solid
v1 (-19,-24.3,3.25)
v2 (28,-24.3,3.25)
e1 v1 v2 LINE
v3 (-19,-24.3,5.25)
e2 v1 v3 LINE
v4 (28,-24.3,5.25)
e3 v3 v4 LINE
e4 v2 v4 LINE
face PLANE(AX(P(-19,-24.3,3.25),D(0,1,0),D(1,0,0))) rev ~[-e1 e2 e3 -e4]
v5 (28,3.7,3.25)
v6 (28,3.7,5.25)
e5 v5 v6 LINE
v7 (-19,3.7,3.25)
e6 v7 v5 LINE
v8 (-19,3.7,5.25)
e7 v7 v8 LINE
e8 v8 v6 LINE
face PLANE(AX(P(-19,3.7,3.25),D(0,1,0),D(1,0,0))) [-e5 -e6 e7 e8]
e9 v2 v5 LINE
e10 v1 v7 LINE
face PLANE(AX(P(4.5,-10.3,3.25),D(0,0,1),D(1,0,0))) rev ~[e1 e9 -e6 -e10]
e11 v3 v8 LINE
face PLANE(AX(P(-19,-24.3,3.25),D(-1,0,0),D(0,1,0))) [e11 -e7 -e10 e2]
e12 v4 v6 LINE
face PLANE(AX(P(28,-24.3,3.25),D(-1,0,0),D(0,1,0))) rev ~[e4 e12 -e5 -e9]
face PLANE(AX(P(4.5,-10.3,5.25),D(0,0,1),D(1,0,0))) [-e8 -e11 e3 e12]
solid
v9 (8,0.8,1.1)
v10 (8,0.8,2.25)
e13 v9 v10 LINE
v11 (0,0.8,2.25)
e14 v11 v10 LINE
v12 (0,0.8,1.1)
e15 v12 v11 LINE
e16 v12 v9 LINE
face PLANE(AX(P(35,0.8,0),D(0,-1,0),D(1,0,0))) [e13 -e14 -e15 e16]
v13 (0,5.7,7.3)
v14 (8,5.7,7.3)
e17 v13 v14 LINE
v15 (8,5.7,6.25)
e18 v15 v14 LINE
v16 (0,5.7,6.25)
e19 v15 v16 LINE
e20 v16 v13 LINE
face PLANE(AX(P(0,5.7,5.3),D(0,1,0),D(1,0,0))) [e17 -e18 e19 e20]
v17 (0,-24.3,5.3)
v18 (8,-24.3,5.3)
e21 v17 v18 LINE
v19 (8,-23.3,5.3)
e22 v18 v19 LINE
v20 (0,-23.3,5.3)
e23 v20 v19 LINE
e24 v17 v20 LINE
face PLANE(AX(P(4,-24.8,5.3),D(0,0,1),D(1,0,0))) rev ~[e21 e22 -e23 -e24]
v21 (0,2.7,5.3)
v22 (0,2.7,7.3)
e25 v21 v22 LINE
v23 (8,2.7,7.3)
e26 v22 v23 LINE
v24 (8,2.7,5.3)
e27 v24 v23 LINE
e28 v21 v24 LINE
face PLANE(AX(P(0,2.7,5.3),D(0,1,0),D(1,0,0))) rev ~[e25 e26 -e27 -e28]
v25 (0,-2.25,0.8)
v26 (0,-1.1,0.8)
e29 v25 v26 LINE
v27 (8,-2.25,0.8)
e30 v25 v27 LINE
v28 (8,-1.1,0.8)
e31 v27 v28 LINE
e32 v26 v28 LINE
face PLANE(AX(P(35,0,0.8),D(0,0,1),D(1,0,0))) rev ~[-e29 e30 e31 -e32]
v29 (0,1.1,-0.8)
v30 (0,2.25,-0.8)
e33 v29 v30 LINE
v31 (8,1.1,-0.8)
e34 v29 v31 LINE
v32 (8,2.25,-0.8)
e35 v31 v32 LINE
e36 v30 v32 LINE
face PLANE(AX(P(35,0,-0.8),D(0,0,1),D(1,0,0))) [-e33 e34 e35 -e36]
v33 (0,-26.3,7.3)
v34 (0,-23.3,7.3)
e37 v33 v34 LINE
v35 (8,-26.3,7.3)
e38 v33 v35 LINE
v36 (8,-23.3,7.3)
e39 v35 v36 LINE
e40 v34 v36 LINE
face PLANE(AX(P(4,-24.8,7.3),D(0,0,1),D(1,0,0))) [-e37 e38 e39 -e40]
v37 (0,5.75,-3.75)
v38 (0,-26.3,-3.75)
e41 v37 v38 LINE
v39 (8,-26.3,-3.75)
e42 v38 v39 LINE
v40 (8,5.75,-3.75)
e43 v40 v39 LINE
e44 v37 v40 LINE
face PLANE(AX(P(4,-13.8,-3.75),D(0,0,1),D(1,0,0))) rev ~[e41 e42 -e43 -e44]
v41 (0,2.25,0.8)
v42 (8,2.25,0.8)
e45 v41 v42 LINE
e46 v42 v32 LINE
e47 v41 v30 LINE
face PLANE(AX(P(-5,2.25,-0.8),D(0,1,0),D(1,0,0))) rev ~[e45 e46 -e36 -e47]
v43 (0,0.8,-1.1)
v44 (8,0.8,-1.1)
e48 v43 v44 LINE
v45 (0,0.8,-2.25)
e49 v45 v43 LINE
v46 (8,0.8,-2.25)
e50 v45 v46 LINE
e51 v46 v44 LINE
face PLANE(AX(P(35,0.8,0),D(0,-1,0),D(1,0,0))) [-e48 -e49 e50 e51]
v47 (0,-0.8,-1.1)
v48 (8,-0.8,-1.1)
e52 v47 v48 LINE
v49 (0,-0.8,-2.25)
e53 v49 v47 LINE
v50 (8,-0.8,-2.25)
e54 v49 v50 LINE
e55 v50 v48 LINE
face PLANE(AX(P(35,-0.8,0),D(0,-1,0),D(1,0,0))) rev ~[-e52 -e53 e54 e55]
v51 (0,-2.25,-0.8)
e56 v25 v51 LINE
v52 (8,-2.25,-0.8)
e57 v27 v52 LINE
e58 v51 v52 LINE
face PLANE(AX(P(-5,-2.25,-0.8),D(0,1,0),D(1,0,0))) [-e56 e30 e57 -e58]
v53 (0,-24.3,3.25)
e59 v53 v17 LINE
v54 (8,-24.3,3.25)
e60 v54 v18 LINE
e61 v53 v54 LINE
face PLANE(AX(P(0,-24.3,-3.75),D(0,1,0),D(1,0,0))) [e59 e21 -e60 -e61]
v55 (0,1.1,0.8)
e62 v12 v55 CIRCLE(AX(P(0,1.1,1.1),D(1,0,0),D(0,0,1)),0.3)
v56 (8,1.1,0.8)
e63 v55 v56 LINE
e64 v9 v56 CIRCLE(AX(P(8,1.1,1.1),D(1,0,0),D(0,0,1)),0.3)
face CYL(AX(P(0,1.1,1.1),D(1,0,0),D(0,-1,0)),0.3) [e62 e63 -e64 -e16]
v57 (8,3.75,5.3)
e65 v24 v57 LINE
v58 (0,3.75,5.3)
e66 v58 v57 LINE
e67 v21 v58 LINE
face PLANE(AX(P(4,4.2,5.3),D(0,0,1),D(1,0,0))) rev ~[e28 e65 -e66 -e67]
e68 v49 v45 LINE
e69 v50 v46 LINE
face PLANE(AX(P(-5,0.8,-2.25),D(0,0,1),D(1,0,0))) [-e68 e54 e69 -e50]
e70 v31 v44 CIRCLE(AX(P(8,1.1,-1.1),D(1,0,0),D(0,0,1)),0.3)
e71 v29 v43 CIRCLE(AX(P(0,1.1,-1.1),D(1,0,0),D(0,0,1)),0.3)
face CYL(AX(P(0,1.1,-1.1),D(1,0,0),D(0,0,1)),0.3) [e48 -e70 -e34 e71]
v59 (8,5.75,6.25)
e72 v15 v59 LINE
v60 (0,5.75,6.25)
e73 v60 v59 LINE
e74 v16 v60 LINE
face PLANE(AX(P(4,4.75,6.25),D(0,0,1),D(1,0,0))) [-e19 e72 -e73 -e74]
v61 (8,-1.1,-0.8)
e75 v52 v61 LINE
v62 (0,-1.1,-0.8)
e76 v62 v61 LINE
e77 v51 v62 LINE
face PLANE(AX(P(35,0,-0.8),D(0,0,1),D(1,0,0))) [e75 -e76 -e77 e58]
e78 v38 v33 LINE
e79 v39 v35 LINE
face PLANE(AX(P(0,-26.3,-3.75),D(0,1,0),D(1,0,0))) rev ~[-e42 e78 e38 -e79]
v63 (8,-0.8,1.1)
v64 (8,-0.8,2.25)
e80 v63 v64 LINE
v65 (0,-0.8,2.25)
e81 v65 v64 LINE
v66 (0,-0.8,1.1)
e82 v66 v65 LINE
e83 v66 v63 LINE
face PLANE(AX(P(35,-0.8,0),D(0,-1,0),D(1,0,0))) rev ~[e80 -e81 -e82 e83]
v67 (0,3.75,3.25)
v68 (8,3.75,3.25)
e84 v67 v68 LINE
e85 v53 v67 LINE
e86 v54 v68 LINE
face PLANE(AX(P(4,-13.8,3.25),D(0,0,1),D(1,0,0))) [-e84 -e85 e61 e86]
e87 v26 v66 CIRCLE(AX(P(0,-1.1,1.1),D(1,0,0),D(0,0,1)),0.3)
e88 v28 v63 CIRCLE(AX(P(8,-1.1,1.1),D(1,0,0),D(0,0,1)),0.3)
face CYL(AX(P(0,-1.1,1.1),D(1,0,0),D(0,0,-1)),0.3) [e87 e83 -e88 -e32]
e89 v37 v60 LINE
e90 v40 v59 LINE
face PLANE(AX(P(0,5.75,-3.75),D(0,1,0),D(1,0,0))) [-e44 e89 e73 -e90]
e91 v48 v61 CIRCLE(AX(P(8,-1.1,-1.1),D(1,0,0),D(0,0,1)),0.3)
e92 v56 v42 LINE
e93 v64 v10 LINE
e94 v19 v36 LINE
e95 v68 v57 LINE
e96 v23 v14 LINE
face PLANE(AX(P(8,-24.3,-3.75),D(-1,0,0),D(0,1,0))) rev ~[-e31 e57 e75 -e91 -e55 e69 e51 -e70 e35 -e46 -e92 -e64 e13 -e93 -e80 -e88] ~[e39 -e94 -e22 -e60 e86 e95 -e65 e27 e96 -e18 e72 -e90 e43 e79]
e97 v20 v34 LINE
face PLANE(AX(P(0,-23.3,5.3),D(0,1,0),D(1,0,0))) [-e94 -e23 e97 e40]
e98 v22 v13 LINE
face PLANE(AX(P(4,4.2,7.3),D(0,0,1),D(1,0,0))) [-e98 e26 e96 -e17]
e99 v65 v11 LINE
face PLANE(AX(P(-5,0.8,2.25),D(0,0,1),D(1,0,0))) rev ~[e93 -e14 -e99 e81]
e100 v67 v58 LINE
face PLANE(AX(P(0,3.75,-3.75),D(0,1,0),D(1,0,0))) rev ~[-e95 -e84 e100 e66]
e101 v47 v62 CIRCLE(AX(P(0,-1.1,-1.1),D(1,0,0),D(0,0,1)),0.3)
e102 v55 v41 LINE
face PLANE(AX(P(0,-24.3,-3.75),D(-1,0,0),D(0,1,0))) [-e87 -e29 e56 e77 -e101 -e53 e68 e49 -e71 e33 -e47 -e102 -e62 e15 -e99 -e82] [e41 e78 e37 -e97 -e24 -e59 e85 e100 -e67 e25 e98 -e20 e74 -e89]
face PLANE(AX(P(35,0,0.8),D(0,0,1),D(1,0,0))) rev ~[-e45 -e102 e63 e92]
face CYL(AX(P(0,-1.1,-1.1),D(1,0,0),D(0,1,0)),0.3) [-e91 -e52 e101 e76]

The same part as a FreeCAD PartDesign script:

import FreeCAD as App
import Part
import Sketcher

V = App.Vector
Q = App.Units.Quantity


def edges_at(feature, points):
    """Names of the edges that pass closest to the given points."""
    edges = feature.Shape.Edges
    near = lambda p: min(range(len(edges)), key=lambda i: edges[i].distToShape(Part.Vertex(*p))[0])
    return sorted({f"Edge{near(p) + 1}" for p in points})

doc = App.newDocument("Part")
body = doc.addObject("PartDesign::Body", "Body")

# Sketch on XY plane
sketch1 = doc.addObject("Sketcher::SketchObject", "Sketch")
body.addObject(sketch1)
sketch1.AttachmentSupport = (doc.XY_Plane, [""])
sketch1.MapMode = "FlatFace"
sketch1.AttachmentOffset = App.Placement(V(0, 0, 3.25), App.Rotation())
sketch1.addGeometry([
    Part.LineSegment(V(-19, 4, 0), V(-19, -24, 0)),
    Part.LineSegment(V(-19, -24, 0), V(28, -24, 0)),
    Part.LineSegment(V(28, -24, 0), V(28, 4, 0)),
    Part.LineSegment(V(28, 4, 0), V(-19, 4, 0)),
], False)
sketch1.addConstraint([
    Sketcher.Constraint("Coincident", 0, 2, 1, 1),
    Sketcher.Constraint("Coincident", 1, 2, 2, 1),
    Sketcher.Constraint("Coincident", 2, 2, 3, 1),
    Sketcher.Constraint("Coincident", 3, 2, 0, 1),
    Sketcher.Constraint("Vertical", 0),
    Sketcher.Constraint("Horizontal", 1),
    Sketcher.Constraint("Vertical", 2),
    Sketcher.Constraint("Horizontal", 3),
    Sketcher.Constraint("DistanceX", 1, 1, 1, 2, Q("47 mm")),
    Sketcher.Constraint("DistanceY", 0, 2, 0, 1, Q("28 mm")),
    Sketcher.Constraint("DistanceX", 0, 2, -1, 1, Q("19 mm")),
    Sketcher.Constraint("DistanceY", 0, 2, -1, 1, Q("24.3 mm")),
])
pad1 = doc.addObject("PartDesign::Pad", "Pad")
body.addObject(pad1)
pad1.Profile = sketch1
pad1.Length = 2
body2 = doc.addObject("PartDesign::Body", "Body001")

# Sketch on XY plane
sketch2 = doc.addObject("Sketcher::SketchObject", "Sketch001")
body2.addObject(sketch2)
sketch2.AttachmentSupport = (doc.getObject("XY_Plane001"), [""])
sketch2.MapMode = "FlatFace"
sketch2.AttachmentOffset = App.Placement(V(0, 0, 5.3), App.Rotation())
sketch2.addGeometry([
    Part.LineSegment(V(0, 5.7, 0), V(0, 2.7, 0)),
    Part.LineSegment(V(0, 2.7, 0), V(8, 2.7, 0)),
    Part.LineSegment(V(8, 2.7, 0), V(8, 5.7, 0)),
    Part.LineSegment(V(8, 5.7, 0), V(0, 5.7, 0)),
], False)
sketch2.addConstraint([
    Sketcher.Constraint("Coincident", 0, 2, 1, 1),
    Sketcher.Constraint("Coincident", 1, 2, 2, 1),
    Sketcher.Constraint("Coincident", 2, 2, 3, 1),
    Sketcher.Constraint("Coincident", 3, 2, 0, 1),
    Sketcher.Constraint("Vertical", 0),
    Sketcher.Constraint("Horizontal", 1),
    Sketcher.Constraint("Vertical", 2),
    Sketcher.Constraint("Horizontal", 3),
    Sketcher.Constraint("PointOnObject", 0, 2, -2),
    Sketcher.Constraint("DistanceX", 1, 1, 1, 2, Q("8 mm")),
    Sketcher.Constraint("DistanceY", 0, 2, 0, 1, Q("3 mm")),
    Sketcher.Constraint("DistanceY", -1, 1, 0, 2, Q("2.7 mm")),
])
pad2 = doc.addObject("PartDesign::Pad", "Pad001")
body2.addObject(pad2)
pad2.Profile = sketch2
pad2.Length = 2
body3 = doc.addObject("PartDesign::Body", "Body002")

# Sketch on XZ plane
sketch3 = doc.addObject("Sketcher::SketchObject", "Sketch002")
body3.addObject(sketch3)
sketch3.AttachmentSupport = (doc.getObject("XZ_Plane002"), [""])
sketch3.MapMode = "FlatFace"
sketch3.AttachmentOffset = App.Placement(V(0, 0, -0.8), App.Rotation())
sketch3.addGeometry([
    Part.LineSegment(V(0, 2.2, 0), V(0, -2.2, 0)),
    Part.LineSegment(V(0, -2.2, 0), V(80, -2.2, 0)),
    Part.LineSegment(V(80, -2.2, 0), V(80, 2.2, 0)),
    Part.LineSegment(V(80, 2.2, 0), V(0, 2.2, 0)),
], False)
sketch3.addConstraint([
    Sketcher.Constraint("Coincident", 0, 2, 1, 1),
    Sketcher.Constraint("Coincident", 1, 2, 2, 1),
    Sketcher.Constraint("Coincident", 2, 2, 3, 1),
    Sketcher.Constraint("Coincident", 3, 2, 0, 1),
    Sketcher.Constraint("Vertical", 0),
    Sketcher.Constraint("Horizontal", 1),
    Sketcher.Constraint("Vertical", 2),
    Sketcher.Constraint("Horizontal", 3),
    Sketcher.Constraint("Symmetric", 0, 2, 3, 2, -1, 1),
    Sketcher.Constraint("DistanceX", 1, 1, 1, 2, Q("80 mm")),
    Sketcher.Constraint("DistanceY", 0, 2, 0, 1, Q("4.5 mm")),
])
pad3 = doc.addObject("PartDesign::Pad", "Pad002")
body3.addObject(pad3)
pad3.Profile = sketch3
pad3.Length = 1.6
body4 = doc.addObject("PartDesign::Body", "Body003")

# Sketch on XY plane
sketch4 = doc.addObject("Sketcher::SketchObject", "Sketch003")
body4.addObject(sketch4)
sketch4.AttachmentSupport = (doc.getObject("XY_Plane003"), [""])
sketch4.MapMode = "FlatFace"
sketch4.AttachmentOffset = App.Placement(V(0, 0, -0.8), App.Rotation())
sketch4.addGeometry([
    Part.LineSegment(V(0, 2.2, 0), V(0, -2.2, 0)),
    Part.LineSegment(V(0, -2.2, 0), V(80, -2.2, 0)),
    Part.LineSegment(V(80, -2.2, 0), V(80, 2.2, 0)),
    Part.LineSegment(V(80, 2.2, 0), V(0, 2.2, 0)),
], False)
sketch4.addConstraint([
    Sketcher.Constraint("Coincident", 0, 2, 1, 1),
    Sketcher.Constraint("Coincident", 1, 2, 2, 1),
    Sketcher.Constraint("Coincident", 2, 2, 3, 1),
    Sketcher.Constraint("Coincident", 3, 2, 0, 1),
    Sketcher.Constraint("Vertical", 0),
    Sketcher.Constraint("Horizontal", 1),
    Sketcher.Constraint("Vertical", 2),
    Sketcher.Constraint("Horizontal", 3),
    Sketcher.Constraint("Symmetric", 0, 2, 3, 2, -1, 1),
    Sketcher.Constraint("DistanceX", 1, 1, 1, 2, Q("80 mm")),
    Sketcher.Constraint("DistanceY", 0, 2, 0, 1, Q("4.5 mm")),
])
pad4 = doc.addObject("PartDesign::Pad", "Pad003")
body4.addObject(pad4)
pad4.Profile = sketch4
pad4.Length = 1.6
doc.recompute()

boolean = doc.addObject("PartDesign::Boolean", "Boolean")
body4.addObject(boolean)
boolean.Type = "Fuse"
boolean.addObjects([body3])
body5 = doc.addObject("PartDesign::Body", "Body004")
doc.recompute()

body4.Placement = App.Placement(V(-5, 0, 0), App.Rotation(V(0, 0, 1), 0))
boolean2 = doc.addObject("PartDesign::Boolean", "Boolean001")
body5.addObject(boolean2)
boolean2.Type = "Fuse"
boolean2.addObjects([body4])
body6 = doc.addObject("PartDesign::Body", "Body005")

# Sketch on XY plane
sketch5 = doc.addObject("Sketcher::SketchObject", "Sketch004")
body6.addObject(sketch5)
sketch5.AttachmentSupport = (doc.getObject("XY_Plane005"), [""])
sketch5.MapMode = "FlatFace"
sketch5.AttachmentOffset = App.Placement(V(0, 0, -3.75), App.Rotation())
sketch5.addGeometry([
    Part.LineSegment(V(0, 4, 0), V(0, -4, 0)),
    Part.LineSegment(V(0, -4, 0), V(8, -4, 0)),
    Part.LineSegment(V(8, -4, 0), V(8, 4, 0)),
    Part.LineSegment(V(8, 4, 0), V(0, 4, 0)),
], False)
sketch5.addConstraint([
    Sketcher.Constraint("Coincident", 0, 2, 1, 1),
    Sketcher.Constraint("Coincident", 1, 2, 2, 1),
    Sketcher.Constraint("Coincident", 2, 2, 3, 1),
    Sketcher.Constraint("Coincident", 3, 2, 0, 1),
    Sketcher.Constraint("Vertical", 0),
    Sketcher.Constraint("Horizontal", 1),
    Sketcher.Constraint("Vertical", 2),
    Sketcher.Constraint("Horizontal", 3),
    Sketcher.Constraint("Symmetric", 0, 2, 3, 2, -1, 1),
    Sketcher.Constraint("DistanceX", 1, 1, 1, 2, Q("8 mm")),
    Sketcher.Constraint("DistanceY", 0, 2, 0, 1, Q("7.5 mm")),
])
pad5 = doc.addObject("PartDesign::Pad", "Pad004")
body6.addObject(pad5)
pad5.Profile = sketch5
pad5.Length = 7
doc.recompute()

boolean3 = doc.addObject("PartDesign::Boolean", "Boolean002")
body6.addObject(boolean3)
boolean3.Type = "Cut"
boolean3.addObjects([body5])
doc.recompute()

fillet = doc.addObject("PartDesign::Fillet", "Fillet")
body6.addObject(fillet)
fillet.Base = (boolean3, edges_at(boolean3, [
    (4, -0.8, 0.8),
    (4, -0.8, -0.8),
    (4, 0.8, -0.8),
    (4, 0.8, 0.8),
]))
fillet.Radius = 0.3
body7 = doc.addObject("PartDesign::Body", "Body006")

# Sketch on XY plane
sketch6 = doc.addObject("Sketcher::SketchObject", "Sketch005")
body7.addObject(sketch6)
sketch6.AttachmentSupport = (doc.getObject("XY_Plane006"), [""])
sketch6.MapMode = "FlatFace"
sketch6.AttachmentOffset = App.Placement(V(0, 0, -3.75), App.Rotation())
sketch6.addGeometry([
    Part.LineSegment(V(0, 5.8, 0), V(0, 3.8, 0)),
    Part.LineSegment(V(0, 3.8, 0), V(8, 3.8, 0)),
    Part.LineSegment(V(8, 3.8, 0), V(8, 5.8, 0)),
    Part.LineSegment(V(8, 5.8, 0), V(0, 5.8, 0)),
], False)
sketch6.addConstraint([
    Sketcher.Constraint("Coincident", 0, 2, 1, 1),
    Sketcher.Constraint("Coincident", 1, 2, 2, 1),
    Sketcher.Constraint("Coincident", 2, 2, 3, 1),
    Sketcher.Constraint("Coincident", 3, 2, 0, 1),
    Sketcher.Constraint("Vertical", 0),
    Sketcher.Constraint("Horizontal", 1),
    Sketcher.Constraint("Vertical", 2),
    Sketcher.Constraint("Horizontal", 3),
    Sketcher.Constraint("PointOnObject", 0, 2, -2),
    Sketcher.Constraint("DistanceX", 1, 1, 1, 2, Q("8 mm")),
    Sketcher.Constraint("DistanceY", 0, 2, 0, 1, Q("2 mm")),
    Sketcher.Constraint("DistanceY", -1, 1, 0, 2, Q("3.75 mm")),
])
pad6 = doc.addObject("PartDesign::Pad", "Pad005")
body7.addObject(pad6)
pad6.Profile = sketch6
pad6.Length = 10
doc.recompute()

boolean4 = doc.addObject("PartDesign::Boolean", "Boolean003")
body7.addObject(boolean4)
boolean4.Type = "Fuse"
boolean4.addObjects([body2])
doc.recompute()

boolean5 = doc.addObject("PartDesign::Boolean", "Boolean004")
body7.addObject(boolean5)
boolean5.Type = "Fuse"
boolean5.addObjects([body6])
body8 = doc.addObject("PartDesign::Body", "Body007")

# Sketch on XY plane
sketch7 = doc.addObject("Sketcher::SketchObject", "Sketch006")
body8.addObject(sketch7)
sketch7.AttachmentSupport = (doc.getObject("XY_Plane007"), [""])
sketch7.MapMode = "FlatFace"
sketch7.AttachmentOffset = App.Placement(V(0, 0, -3.75), App.Rotation())
sketch7.addGeometry([
    Part.LineSegment(V(0, -3, 0), V(0, -24, 0)),
    Part.LineSegment(V(0, -24, 0), V(8, -24, 0)),
    Part.LineSegment(V(8, -24, 0), V(8, -3, 0)),
    Part.LineSegment(V(8, -3, 0), V(0, -3, 0)),
], False)
sketch7.addConstraint([
    Sketcher.Constraint("Coincident", 0, 2, 1, 1),
    Sketcher.Constraint("Coincident", 1, 2, 2, 1),
    Sketcher.Constraint("Coincident", 2, 2, 3, 1),
    Sketcher.Constraint("Coincident", 3, 2, 0, 1),
    Sketcher.Constraint("Vertical", 0),
    Sketcher.Constraint("Horizontal", 1),
    Sketcher.Constraint("Vertical", 2),
    Sketcher.Constraint("Horizontal", 3),
    Sketcher.Constraint("PointOnObject", 0, 2, -2),
    Sketcher.Constraint("DistanceX", 1, 1, 1, 2, Q("8 mm")),
    Sketcher.Constraint("DistanceY", 0, 2, 0, 1, Q("21 mm")),
    Sketcher.Constraint("DistanceY", 0, 2, -1, 1, Q("24.3 mm")),
])
pad7 = doc.addObject("PartDesign::Pad", "Pad006")
body8.addObject(pad7)
pad7.Profile = sketch7
pad7.Length = 7
doc.recompute()

boolean6 = doc.addObject("PartDesign::Boolean", "Boolean005")
body8.addObject(boolean6)
boolean6.Type = "Fuse"
boolean6.addObjects([body7])
body9 = doc.addObject("PartDesign::Body", "Body008")

# Sketch on XY plane
sketch8 = doc.addObject("Sketcher::SketchObject", "Sketch007")
body9.addObject(sketch8)
sketch8.AttachmentSupport = (doc.getObject("XY_Plane008"), [""])
sketch8.MapMode = "FlatFace"
sketch8.AttachmentOffset = App.Placement(V(0, 0, 5.3), App.Rotation())
sketch8.addGeometry([
    Part.LineSegment(V(0, -23.3, 0), V(0, -26.3, 0)),
    Part.LineSegment(V(0, -26.3, 0), V(8, -26.3, 0)),
    Part.LineSegment(V(8, -26.3, 0), V(8, -23.3, 0)),
    Part.LineSegment(V(8, -23.3, 0), V(0, -23.3, 0)),
], False)
sketch8.addConstraint([
    Sketcher.Constraint("Coincident", 0, 2, 1, 1),
    Sketcher.Constraint("Coincident", 1, 2, 2, 1),
    Sketcher.Constraint("Coincident", 2, 2, 3, 1),
    Sketcher.Constraint("Coincident", 3, 2, 0, 1),
    Sketcher.Constraint("Vertical", 0),
    Sketcher.Constraint("Horizontal", 1),
    Sketcher.Constraint("Vertical", 2),
    Sketcher.Constraint("Horizontal", 3),
    Sketcher.Constraint("PointOnObject", 0, 2, -2),
    Sketcher.Constraint("DistanceX", 1, 1, 1, 2, Q("8 mm")),
    Sketcher.Constraint("DistanceY", 0, 2, 0, 1, Q("3 mm")),
    Sketcher.Constraint("DistanceY", 0, 2, -1, 1, Q("26.3 mm")),
])
pad8 = doc.addObject("PartDesign::Pad", "Pad007")
body9.addObject(pad8)
pad8.Profile = sketch8
pad8.Length = 2
body10 = doc.addObject("PartDesign::Body", "Body009")

# Sketch on XY plane
sketch9 = doc.addObject("Sketcher::SketchObject", "Sketch008")
body10.addObject(sketch9)
sketch9.AttachmentSupport = (doc.getObject("XY_Plane009"), [""])
sketch9.MapMode = "FlatFace"
sketch9.AttachmentOffset = App.Placement(V(0, 0, -3.75), App.Rotation())
sketch9.addGeometry([
    Part.LineSegment(V(0, -24.3, 0), V(0, -26.3, 0)),
    Part.LineSegment(V(0, -26.3, 0), V(8, -26.3, 0)),
    Part.LineSegment(V(8, -26.3, 0), V(8, -24.3, 0)),
    Part.LineSegment(V(8, -24.3, 0), V(0, -24.3, 0)),
], False)
sketch9.addConstraint([
    Sketcher.Constraint("Coincident", 0, 2, 1, 1),
    Sketcher.Constraint("Coincident", 1, 2, 2, 1),
    Sketcher.Constraint("Coincident", 2, 2, 3, 1),
    Sketcher.Constraint("Coincident", 3, 2, 0, 1),
    Sketcher.Constraint("Vertical", 0),
    Sketcher.Constraint("Horizontal", 1),
    Sketcher.Constraint("Vertical", 2),
    Sketcher.Constraint("Horizontal", 3),
    Sketcher.Constraint("PointOnObject", 0, 2, -2),
    Sketcher.Constraint("DistanceX", 1, 1, 1, 2, Q("8 mm")),
    Sketcher.Constraint("DistanceY", 0, 2, 0, 1, Q("2 mm")),
    Sketcher.Constraint("DistanceY", 0, 2, -1, 1, Q("26.3 mm")),
])
pad9 = doc.addObject("PartDesign::Pad", "Pad008")
body10.addObject(pad9)
pad9.Profile = sketch9
pad9.Length = 10
doc.recompute()

boolean7 = doc.addObject("PartDesign::Boolean", "Boolean006")
body10.addObject(boolean7)
boolean7.Type = "Fuse"
boolean7.addObjects([body9])
doc.recompute()

boolean8 = doc.addObject("PartDesign::Boolean", "Boolean007")
body10.addObject(boolean8)
boolean8.Type = "Fuse"
boolean8.addObjects([body8])

doc.recompute()
